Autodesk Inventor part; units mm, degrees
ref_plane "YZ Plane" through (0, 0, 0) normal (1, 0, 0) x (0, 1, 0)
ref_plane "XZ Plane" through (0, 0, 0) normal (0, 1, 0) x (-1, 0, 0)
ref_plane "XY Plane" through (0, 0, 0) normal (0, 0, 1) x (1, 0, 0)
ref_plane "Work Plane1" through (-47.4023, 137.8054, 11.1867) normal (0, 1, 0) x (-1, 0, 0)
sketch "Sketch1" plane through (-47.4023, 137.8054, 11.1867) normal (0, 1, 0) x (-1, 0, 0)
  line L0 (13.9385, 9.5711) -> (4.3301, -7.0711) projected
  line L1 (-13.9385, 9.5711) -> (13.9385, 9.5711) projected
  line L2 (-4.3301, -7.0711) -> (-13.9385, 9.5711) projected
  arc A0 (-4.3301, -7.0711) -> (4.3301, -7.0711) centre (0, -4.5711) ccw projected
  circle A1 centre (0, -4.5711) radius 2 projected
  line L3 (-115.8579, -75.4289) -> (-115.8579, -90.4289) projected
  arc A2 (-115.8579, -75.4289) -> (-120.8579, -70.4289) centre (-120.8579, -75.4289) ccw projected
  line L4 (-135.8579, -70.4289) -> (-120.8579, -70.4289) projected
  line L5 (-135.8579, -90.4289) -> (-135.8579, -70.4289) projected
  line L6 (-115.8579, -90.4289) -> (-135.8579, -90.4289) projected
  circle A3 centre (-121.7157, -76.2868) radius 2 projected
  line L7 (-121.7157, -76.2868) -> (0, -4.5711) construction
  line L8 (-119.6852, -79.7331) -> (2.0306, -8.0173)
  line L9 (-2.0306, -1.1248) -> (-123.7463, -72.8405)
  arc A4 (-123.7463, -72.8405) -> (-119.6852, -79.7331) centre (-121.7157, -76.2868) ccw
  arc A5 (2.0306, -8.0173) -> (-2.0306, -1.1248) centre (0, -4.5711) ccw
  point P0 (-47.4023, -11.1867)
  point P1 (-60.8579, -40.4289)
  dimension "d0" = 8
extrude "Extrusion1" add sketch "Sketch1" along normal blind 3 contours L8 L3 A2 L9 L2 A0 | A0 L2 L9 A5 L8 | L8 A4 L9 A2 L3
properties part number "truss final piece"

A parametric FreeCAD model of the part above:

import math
import FreeCAD as App
import Part
import Sketcher
Q = App.Units.Quantity

doc = App.newDocument("Part")
params = doc.addObject("Spreadsheet::Sheet", "Params")
for row, (alias, value) in enumerate([
    ("sketch1_radius", "4 mm"),
    ("sketch1_diameter", "4 mm"),
    ("pad1_length", "3 mm"),
], start=1):
    params.set(f"A{row}", alias)
    params.set(f"B{row}", "=" + value)
    params.setAlias(f"B{row}", alias)

body = doc.addObject("PartDesign::Body", "Body")

sketch1 = body.newObject("Sketcher::SketchObject", "Sketch")
sketch1.AttachmentSupport = (doc.getObject("XZ_Plane"), [""])
sketch1.MapMode = "FlatFace"
sketch1.AttachmentOffset = App.Placement(App.Vector(0, 0, -137.8054), App.Rotation())
sketch1.addGeometry([
    Part.ArcOfCircle(Part.Circle(App.Vector(-47.4, 6.6, 0), App.Vector(0, 0, 1), 4), math.radians(59), math.radians(239)),
    Part.LineSegment(App.Vector(-45.4, 10.1, 0), App.Vector(76.3, -61.7, 0)),
    Part.ArcOfCircle(Part.Circle(App.Vector(74.3, -65.1, 0), App.Vector(0, 0, 1), 4), math.radians(-121), math.radians(59)),
    Part.LineSegment(App.Vector(72.3, -68.5, 0), App.Vector(-49.4, 3.2, 0)),
    Part.Circle(App.Vector(74.3, -65.1, 0), App.Vector(0, 0, 1), 2),
    Part.Circle(App.Vector(-47.4, 6.6, 0), App.Vector(0, 0, 1), 2),
], False)
sketch1.addConstraint([
    Sketcher.Constraint("Tangent", 0, 1, 1, 1),
    Sketcher.Constraint("Tangent", 1, 2, 2, 2),
    Sketcher.Constraint("Tangent", 2, 1, 3, 1),
    Sketcher.Constraint("Tangent", 3, 2, 0, 2),
    Sketcher.Constraint("Coincident", 4, 3, 2, 3),
    Sketcher.Constraint("Coincident", 5, 3, 0, 3),
    Sketcher.Constraint("Equal", 0, 2),
    Sketcher.Constraint("Equal", 4, 5),
    Sketcher.Constraint("Radius", 0, Q("4 mm")),
    Sketcher.Constraint("Diameter", 4, Q("4 mm")),
    Sketcher.Constraint("DistanceY", 2, 3, -1, 1, Q("65.1 mm")),
    Sketcher.Constraint("DistanceX", -1, 1, 1, 2, Q("76.344 mm")),
    Sketcher.Constraint("DistanceX", 3, 2, -1, 1, Q("49.433 mm")),
    Sketcher.Constraint("DistanceY", 2, 3, 0, 1, Q("75.162 mm")),
])
sketch1.setExpression("Constraints[8]", "Params.sketch1_radius")
sketch1.setExpression("Constraints[9]", "Params.sketch1_diameter")
pad1 = body.newObject("PartDesign::Pad", "Pad")
pad1.Profile = sketch1
pad1.setExpression("Length", "Params.pad1_length")
pad1.Reversed = True

doc.recompute()
